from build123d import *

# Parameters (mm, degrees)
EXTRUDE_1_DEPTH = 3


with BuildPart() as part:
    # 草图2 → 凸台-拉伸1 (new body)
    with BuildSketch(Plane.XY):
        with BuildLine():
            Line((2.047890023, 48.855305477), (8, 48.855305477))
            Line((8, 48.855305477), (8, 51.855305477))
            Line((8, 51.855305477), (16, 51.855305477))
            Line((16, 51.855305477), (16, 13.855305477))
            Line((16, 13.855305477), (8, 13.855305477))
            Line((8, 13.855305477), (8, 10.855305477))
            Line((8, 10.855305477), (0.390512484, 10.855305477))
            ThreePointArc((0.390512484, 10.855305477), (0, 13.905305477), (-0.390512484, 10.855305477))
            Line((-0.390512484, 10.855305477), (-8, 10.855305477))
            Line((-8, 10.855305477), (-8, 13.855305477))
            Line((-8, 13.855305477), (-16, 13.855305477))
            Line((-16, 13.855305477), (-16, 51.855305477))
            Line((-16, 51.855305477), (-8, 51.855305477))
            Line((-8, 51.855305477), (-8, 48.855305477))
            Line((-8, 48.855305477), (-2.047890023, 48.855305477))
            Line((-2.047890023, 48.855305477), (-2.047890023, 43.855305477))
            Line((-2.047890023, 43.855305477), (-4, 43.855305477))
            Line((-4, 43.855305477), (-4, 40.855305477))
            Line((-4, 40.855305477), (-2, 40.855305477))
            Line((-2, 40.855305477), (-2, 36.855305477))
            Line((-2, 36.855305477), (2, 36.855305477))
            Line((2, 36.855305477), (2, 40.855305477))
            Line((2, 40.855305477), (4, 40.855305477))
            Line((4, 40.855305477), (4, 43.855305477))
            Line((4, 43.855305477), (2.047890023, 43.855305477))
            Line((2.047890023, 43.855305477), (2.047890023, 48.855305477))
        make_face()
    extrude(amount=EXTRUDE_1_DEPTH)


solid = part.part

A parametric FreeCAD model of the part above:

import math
import FreeCAD as App
import Part
import Sketcher
from FreeCAD import Vector

doc = App.newDocument("Part")
params = doc.addObject("Spreadsheet::Sheet", "Params")
for row, (alias, value) in enumerate([
    ("sketch1_width", "2 mm"),
    ("sketch1_width2", "4 mm"),
    ("sketch1_width3", "8 mm"),
    ("sketch1_height", "5 mm"),
    ("sketch1_height2", "3 mm"),
    ("pad1_length", "3 mm"),
], start=1):
    params.set(f"A{row}", alias)
    params.set(f"B{row}", "=" + value)
    params.setAlias(f"B{row}", alias)

body = doc.addObject("PartDesign::Body", "Body")

# Sketch on XY plane
sketch1 = doc.addObject("Sketcher::SketchObject", "Sketch")
body.addObject(sketch1)
sketch1.AttachmentSupport = (doc.XY_Plane, [""])
sketch1.MapMode = "FlatFace"
sketch1.addGeometry([
    Part.LineSegment(Vector(8, 48.9, 0), Vector(2, 48.9, 0)),  # 0
    Part.LineSegment(Vector(2, 48.9, 0), Vector(2, 43.9, 0)),  # 1
    Part.LineSegment(Vector(2, 43.9, 0), Vector(4, 43.9, 0)),  # 2
    Part.LineSegment(Vector(4, 43.9, 0), Vector(4, 40.9, 0)),  # 3
    Part.LineSegment(Vector(4, 40.9, 0), Vector(2, 40.9, 0)),  # 4
    Part.LineSegment(Vector(2, 40.9, 0), Vector(2, 36.9, 0)),  # 5
    Part.LineSegment(Vector(2, 36.9, 0), Vector(-2, 36.9, 0)),  # 6
    Part.LineSegment(Vector(-2, 36.9, 0), Vector(-2, 40.9, 0)),  # 7
    Part.LineSegment(Vector(-2, 40.9, 0), Vector(-4, 40.9, 0)),  # 8
    Part.LineSegment(Vector(-4, 40.9, 0), Vector(-4, 43.9, 0)),  # 9
    Part.LineSegment(Vector(-4, 43.9, 0), Vector(-2, 43.9, 0)),  # 10
    Part.LineSegment(Vector(-2, 43.9, 0), Vector(-2, 48.9, 0)),  # 11
    Part.LineSegment(Vector(-2, 48.9, 0), Vector(-8, 48.9, 0)),  # 12
    Part.LineSegment(Vector(-8, 48.9, 0), Vector(-8, 51.9, 0)),  # 13
    Part.LineSegment(Vector(-8, 51.9, 0), Vector(-16, 51.9, 0)),  # 14
    Part.LineSegment(Vector(-16, 51.9, 0), Vector(-16, 13.9, 0)),  # 15
    Part.LineSegment(Vector(-16, 13.9, 0), Vector(-8, 13.9, 0)),  # 16
    Part.LineSegment(Vector(-8, 13.9, 0), Vector(-8, 10.9, 0)),  # 17
    Part.LineSegment(Vector(-8, 10.9, 0), Vector(-0.4, 10.9, 0)),  # 18
    Part.ArcOfCircle(Part.Circle(Vector(0, 12.4, 0), Vector(0, 0, 1), 1.6), math.radians(-75), math.radians(255)),  # 19
    Part.LineSegment(Vector(0.4, 10.9, 0), Vector(8, 10.9, 0)),  # 20
    Part.LineSegment(Vector(8, 10.9, 0), Vector(8, 13.9, 0)),  # 21
    Part.LineSegment(Vector(8, 13.9, 0), Vector(16, 13.9, 0)),  # 22
    Part.LineSegment(Vector(16, 13.9, 0), Vector(16, 51.9, 0)),  # 23
    Part.LineSegment(Vector(16, 51.9, 0), Vector(8, 51.9, 0)),  # 24
    Part.LineSegment(Vector(8, 51.9, 0), Vector(8, 48.9, 0)),  # 25
], False)
sketch1.addConstraint([
    Sketcher.Constraint("Coincident", 0, 2, 1, 1),
    Sketcher.Constraint("Coincident", 1, 2, 2, 1),
    Sketcher.Constraint("Coincident", 2, 2, 3, 1),
    Sketcher.Constraint("Coincident", 3, 2, 4, 1),
    Sketcher.Constraint("Coincident", 4, 2, 5, 1),
    Sketcher.Constraint("Coincident", 5, 2, 6, 1),
    Sketcher.Constraint("Coincident", 6, 2, 7, 1),
    Sketcher.Constraint("Coincident", 7, 2, 8, 1),
    Sketcher.Constraint("Coincident", 8, 2, 9, 1),
    Sketcher.Constraint("Coincident", 9, 2, 10, 1),
    Sketcher.Constraint("Coincident", 10, 2, 11, 1),
    Sketcher.Constraint("Coincident", 11, 2, 12, 1),
    Sketcher.Constraint("Coincident", 12, 2, 13, 1),
    Sketcher.Constraint("Coincident", 13, 2, 14, 1),
    Sketcher.Constraint("Coincident", 14, 2, 15, 1),
    Sketcher.Constraint("Coincident", 15, 2, 16, 1),
    Sketcher.Constraint("Coincident", 16, 2, 17, 1),
    Sketcher.Constraint("Coincident", 17, 2, 18, 1),
    Sketcher.Constraint("Coincident", 18, 2, 19, 2),
    Sketcher.Constraint("Coincident", 19, 1, 20, 1),
    Sketcher.Constraint("Coincident", 20, 2, 21, 1),
    Sketcher.Constraint("Coincident", 21, 2, 22, 1),
    Sketcher.Constraint("Coincident", 22, 2, 23, 1),
    Sketcher.Constraint("Coincident", 23, 2, 24, 1),
    Sketcher.Constraint("Coincident", 24, 2, 25, 1),
    Sketcher.Constraint("Coincident", 25, 2, 0, 1),
    Sketcher.Constraint("Horizontal", 0),
    Sketcher.Constraint("Vertical", 1),
    Sketcher.Constraint("Horizontal", 2),
    Sketcher.Constraint("Vertical", 3),
    Sketcher.Constraint("Horizontal", 4),
    Sketcher.Constraint("Vertical", 5),
    Sketcher.Constraint("Horizontal", 6),
    Sketcher.Constraint("Vertical", 7),
    Sketcher.Constraint("Horizontal", 8),
    Sketcher.Constraint("Vertical", 9),
    Sketcher.Constraint("Horizontal", 10),
    Sketcher.Constraint("Vertical", 11),
    Sketcher.Constraint("Horizontal", 12),
    Sketcher.Constraint("Vertical", 13),
    Sketcher.Constraint("Horizontal", 14),
    Sketcher.Constraint("Vertical", 15),
    Sketcher.Constraint("Horizontal", 16),
    Sketcher.Constraint("Vertical", 17),
    Sketcher.Constraint("Horizontal", 18),
    Sketcher.Constraint("Horizontal", 20),
    Sketcher.Constraint("Vertical", 21),
    Sketcher.Constraint("Horizontal", 22),
    Sketcher.Constraint("Vertical", 23),
    Sketcher.Constraint("Horizontal", 24),
    Sketcher.Constraint("Vertical", 25),
    Sketcher.Constraint("Symmetric", 4, 2, 7, 2, -2),
    Sketcher.Constraint("Symmetric", 2, 2, 9, 2, -2),
    Sketcher.Constraint("Symmetric", 0, 2, 11, 2, -2),
    Sketcher.Constraint("Symmetric", 18, 2, 19, 1, -2),
    Sketcher.Constraint("Symmetric", 16, 2, 21, 2, -2),
    Sketcher.Constraint("Symmetric", 14, 2, 23, 2, -2),
    Sketcher.Constraint("Vertical", 13, 2, 16, 2),
    Sketcher.Constraint("Vertical", 21, 2, 24, 2),
    Sketcher.Constraint("Equal", 6, 5),
    Sketcher.Constraint("Equal", 9, 13),
    Sketcher.Constraint("Equal", 13, 17),
    Sketcher.Constraint("DistanceX", 4, 2, 4, 1, 2.0),
    Sketcher.Constraint("DistanceX", 6, 2, 6, 1, 4.0),
    Sketcher.Constraint("DistanceX", 14, 2, 14, 1, 8.0),
    Sketcher.Constraint("DistanceY", 1, 2, 1, 1, 5.0),
    Sketcher.Constraint("DistanceY", 3, 2, 3, 1, 3.0),
    Sketcher.Constraint("DistanceY", 15, 2, 15, 1, 38.0),
    Sketcher.Constraint("Radius", 19, 1.55),
    Sketcher.Constraint("DistanceX", 12, 2, -1, 1, 8.0),
    Sketcher.Constraint("DistanceY", 19, 3, 0, 2, 36.5),
    Sketcher.Constraint("DistanceX", 0, 2, 0, 1, 5.95211),
    Sketcher.Constraint("DistanceY", -1, 1, 19, 3, 12.355305),
])
sketch1.setExpression("Constraints[62]", "Params.sketch1_width")
sketch1.setExpression("Constraints[63]", "Params.sketch1_width2")
sketch1.setExpression("Constraints[64]", "Params.sketch1_width3")
sketch1.setExpression("Constraints[65]", "Params.sketch1_height")
sketch1.setExpression("Constraints[66]", "Params.sketch1_height2")
pad1 = doc.addObject("PartDesign::Pad", "Pad")
body.addObject(pad1)
pad1.Profile = sketch1
pad1.setExpression("Length", "Params.pad1_length")

doc.recompute()
